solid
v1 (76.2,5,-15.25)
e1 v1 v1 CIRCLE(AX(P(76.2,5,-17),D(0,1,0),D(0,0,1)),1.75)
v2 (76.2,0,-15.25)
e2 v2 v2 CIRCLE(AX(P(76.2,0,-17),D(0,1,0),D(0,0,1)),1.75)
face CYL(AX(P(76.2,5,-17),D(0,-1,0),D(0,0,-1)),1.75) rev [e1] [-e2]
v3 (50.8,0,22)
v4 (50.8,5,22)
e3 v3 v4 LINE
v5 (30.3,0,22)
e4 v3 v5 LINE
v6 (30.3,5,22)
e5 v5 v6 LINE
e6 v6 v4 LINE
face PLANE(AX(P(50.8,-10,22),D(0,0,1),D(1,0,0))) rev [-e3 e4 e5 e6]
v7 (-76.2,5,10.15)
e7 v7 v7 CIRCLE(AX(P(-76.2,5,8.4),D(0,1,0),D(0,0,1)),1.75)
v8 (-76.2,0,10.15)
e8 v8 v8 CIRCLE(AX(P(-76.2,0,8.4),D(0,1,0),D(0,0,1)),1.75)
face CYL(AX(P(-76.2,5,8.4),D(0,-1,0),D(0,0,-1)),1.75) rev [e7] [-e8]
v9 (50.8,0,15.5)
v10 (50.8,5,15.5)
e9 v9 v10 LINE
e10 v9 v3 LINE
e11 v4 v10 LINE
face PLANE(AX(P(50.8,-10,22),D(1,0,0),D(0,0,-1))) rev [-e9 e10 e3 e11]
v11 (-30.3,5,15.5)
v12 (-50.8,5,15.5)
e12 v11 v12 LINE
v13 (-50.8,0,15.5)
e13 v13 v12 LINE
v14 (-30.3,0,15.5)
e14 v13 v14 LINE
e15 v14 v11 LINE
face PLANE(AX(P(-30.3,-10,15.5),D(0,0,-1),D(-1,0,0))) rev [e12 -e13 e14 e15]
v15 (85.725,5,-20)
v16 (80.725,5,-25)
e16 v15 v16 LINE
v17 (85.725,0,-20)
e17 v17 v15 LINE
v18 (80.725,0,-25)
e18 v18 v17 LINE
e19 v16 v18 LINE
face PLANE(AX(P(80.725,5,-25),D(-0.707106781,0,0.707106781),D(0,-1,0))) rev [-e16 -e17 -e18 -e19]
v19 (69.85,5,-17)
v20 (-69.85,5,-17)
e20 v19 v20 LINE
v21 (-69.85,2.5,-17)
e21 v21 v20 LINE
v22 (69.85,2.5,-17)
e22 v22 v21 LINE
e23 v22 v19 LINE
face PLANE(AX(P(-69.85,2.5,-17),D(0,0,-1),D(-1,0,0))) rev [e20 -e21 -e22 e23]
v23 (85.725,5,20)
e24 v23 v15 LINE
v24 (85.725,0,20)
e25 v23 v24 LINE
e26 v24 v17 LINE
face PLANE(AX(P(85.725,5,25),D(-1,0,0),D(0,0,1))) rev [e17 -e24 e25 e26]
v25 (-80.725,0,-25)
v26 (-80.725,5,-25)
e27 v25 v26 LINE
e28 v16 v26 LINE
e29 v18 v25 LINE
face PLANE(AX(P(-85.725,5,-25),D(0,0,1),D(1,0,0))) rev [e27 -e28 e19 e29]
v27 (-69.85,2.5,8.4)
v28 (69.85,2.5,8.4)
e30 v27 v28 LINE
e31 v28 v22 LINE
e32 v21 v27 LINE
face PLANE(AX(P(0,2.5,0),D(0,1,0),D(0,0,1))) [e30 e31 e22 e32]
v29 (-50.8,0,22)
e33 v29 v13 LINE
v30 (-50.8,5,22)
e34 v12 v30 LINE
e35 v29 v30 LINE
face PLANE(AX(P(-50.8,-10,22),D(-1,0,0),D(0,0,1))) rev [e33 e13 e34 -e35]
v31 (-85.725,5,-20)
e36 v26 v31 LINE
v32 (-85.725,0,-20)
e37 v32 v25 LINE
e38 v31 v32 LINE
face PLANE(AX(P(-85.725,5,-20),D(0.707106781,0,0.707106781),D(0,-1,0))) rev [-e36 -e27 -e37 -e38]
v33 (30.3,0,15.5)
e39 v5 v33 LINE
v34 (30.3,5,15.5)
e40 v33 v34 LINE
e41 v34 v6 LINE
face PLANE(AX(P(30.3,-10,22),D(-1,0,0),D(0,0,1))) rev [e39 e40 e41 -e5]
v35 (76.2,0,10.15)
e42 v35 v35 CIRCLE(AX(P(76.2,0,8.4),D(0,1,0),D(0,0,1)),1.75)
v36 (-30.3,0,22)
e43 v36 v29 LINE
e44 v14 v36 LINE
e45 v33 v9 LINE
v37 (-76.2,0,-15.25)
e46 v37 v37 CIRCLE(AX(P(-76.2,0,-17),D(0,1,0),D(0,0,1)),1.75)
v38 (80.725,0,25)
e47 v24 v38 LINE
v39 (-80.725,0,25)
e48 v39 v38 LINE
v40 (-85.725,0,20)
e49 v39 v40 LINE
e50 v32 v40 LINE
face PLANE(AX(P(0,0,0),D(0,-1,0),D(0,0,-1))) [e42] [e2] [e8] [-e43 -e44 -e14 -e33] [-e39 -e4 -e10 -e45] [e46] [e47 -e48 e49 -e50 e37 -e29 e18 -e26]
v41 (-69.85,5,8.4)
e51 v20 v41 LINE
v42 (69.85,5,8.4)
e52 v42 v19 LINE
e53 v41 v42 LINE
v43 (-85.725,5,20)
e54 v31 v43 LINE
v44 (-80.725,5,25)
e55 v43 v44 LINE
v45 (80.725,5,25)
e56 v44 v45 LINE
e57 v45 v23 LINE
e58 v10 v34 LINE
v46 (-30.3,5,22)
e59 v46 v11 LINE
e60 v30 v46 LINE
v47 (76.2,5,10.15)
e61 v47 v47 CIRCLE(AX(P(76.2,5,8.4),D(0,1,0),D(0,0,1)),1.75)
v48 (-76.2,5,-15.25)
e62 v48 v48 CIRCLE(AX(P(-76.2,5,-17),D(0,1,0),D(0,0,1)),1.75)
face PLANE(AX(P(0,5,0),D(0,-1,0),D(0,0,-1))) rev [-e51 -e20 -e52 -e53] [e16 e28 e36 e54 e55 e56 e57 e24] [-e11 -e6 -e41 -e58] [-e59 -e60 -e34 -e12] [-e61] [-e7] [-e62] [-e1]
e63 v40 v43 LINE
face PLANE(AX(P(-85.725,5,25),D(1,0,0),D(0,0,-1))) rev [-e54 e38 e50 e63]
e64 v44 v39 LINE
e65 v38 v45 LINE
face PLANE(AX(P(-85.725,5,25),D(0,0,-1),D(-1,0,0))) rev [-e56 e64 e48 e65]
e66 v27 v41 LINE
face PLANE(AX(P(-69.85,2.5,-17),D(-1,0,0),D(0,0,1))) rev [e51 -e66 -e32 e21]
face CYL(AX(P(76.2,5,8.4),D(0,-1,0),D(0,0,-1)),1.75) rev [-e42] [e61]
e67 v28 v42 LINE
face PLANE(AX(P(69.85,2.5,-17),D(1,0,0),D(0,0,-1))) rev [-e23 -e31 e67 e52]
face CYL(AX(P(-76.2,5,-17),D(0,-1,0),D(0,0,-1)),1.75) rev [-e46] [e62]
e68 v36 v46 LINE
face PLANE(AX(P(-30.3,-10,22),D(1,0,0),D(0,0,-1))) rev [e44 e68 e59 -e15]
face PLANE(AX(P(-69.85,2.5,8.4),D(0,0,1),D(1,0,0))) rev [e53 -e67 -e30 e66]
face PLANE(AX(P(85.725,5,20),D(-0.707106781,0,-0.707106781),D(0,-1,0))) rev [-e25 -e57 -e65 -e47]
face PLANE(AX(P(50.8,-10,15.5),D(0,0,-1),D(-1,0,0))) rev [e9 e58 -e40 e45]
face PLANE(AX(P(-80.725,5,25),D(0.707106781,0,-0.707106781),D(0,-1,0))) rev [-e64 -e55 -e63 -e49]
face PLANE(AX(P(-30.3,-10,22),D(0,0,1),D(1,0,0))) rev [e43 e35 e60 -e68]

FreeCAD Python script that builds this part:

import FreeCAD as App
import Part
import Sketcher
from FreeCAD import Vector


def edges_at(feature, points):
    """Names of the edges that pass closest to the given points."""
    edges = feature.Shape.Edges
    near = lambda p: min(range(len(edges)), key=lambda i: edges[i].distToShape(Part.Vertex(*p))[0])
    return sorted({f"Edge{near(p) + 1}" for p in points})

doc = App.newDocument("Part")
body = doc.addObject("PartDesign::Body", "Body")

sketch1 = body.newObject("Sketcher::SketchObject", "Sketch")
sketch1.AttachmentSupport = (doc.getObject("XZ_Plane"), [""])
sketch1.MapMode = "FlatFace"
sketch1.addGeometry(Part.LineSegment(Vector(-85.7, -25, 0), Vector(-85.7, 25, 0)), False)
sketch1.addGeometry(Part.LineSegment(Vector(-85.7, 25, 0), Vector(85.7, 25, 0)), False)
sketch1.addGeometry(Part.LineSegment(Vector(85.7, 25, 0), Vector(85.7, -25, 0)), False)
sketch1.addGeometry(Part.LineSegment(Vector(85.7, -25, 0), Vector(-85.7, -25, 0)), False)
sketch1.addGeometry(Part.Circle(Vector(-76.2, 8.4, 0), Vector(0, 0, 1), 1.8), False)
sketch1.addGeometry(Part.Circle(Vector(76.2, 8.4, 0), Vector(0, 0, 1), 1.8), False)
sketch1.addGeometry(Part.Circle(Vector(-76.2, -17, 0), Vector(0, 0, 1), 1.8), False)
sketch1.addGeometry(Part.Circle(Vector(76.2, -17, 0), Vector(0, 0, 1), 1.8), False)
sketch1.addConstraint(Sketcher.Constraint("Coincident", 0, 2, 1, 1))
sketch1.addConstraint(Sketcher.Constraint("Coincident", 1, 2, 2, 1))
sketch1.addConstraint(Sketcher.Constraint("Coincident", 2, 2, 3, 1))
sketch1.addConstraint(Sketcher.Constraint("Coincident", 3, 2, 0, 1))
sketch1.addConstraint(Sketcher.Constraint("Vertical", 0))
sketch1.addConstraint(Sketcher.Constraint("Horizontal", 1))
sketch1.addConstraint(Sketcher.Constraint("Vertical", 2))
sketch1.addConstraint(Sketcher.Constraint("Horizontal", 3))
sketch1.addConstraint(Sketcher.Constraint("Equal", 4, 5))
sketch1.addConstraint(Sketcher.Constraint("Equal", 5, 6))
sketch1.addConstraint(Sketcher.Constraint("Equal", 6, 7))
sketch1.addConstraint(Sketcher.Constraint("Symmetric", 0, 2, 2, 2, -1, 1))
sketch1.addConstraint(Sketcher.Constraint("Symmetric", 4, 3, 5, 3, -2))
sketch1.addConstraint(Sketcher.Constraint("Symmetric", 6, 3, 7, 3, -2))
sketch1.addConstraint(Sketcher.Constraint("Vertical", 4, 3, 6, 3))
sketch1.addConstraint(Sketcher.Constraint("Diameter", 4, 3.5))
sketch1.addConstraint(Sketcher.Constraint("DistanceY", 0, 1, 0, 2, 50.0))
sketch1.addConstraint(Sketcher.Constraint("DistanceY", 6, 3, -1, 1, 17.0))
sketch1.addConstraint(Sketcher.Constraint("DistanceX", 1, 1, 1, 2, 171.45))
sketch1.addConstraint(Sketcher.Constraint("DistanceX", 4, 3, -1, 1, 76.2))
sketch1.addConstraint(Sketcher.Constraint("DistanceY", -1, 1, 4, 3, 8.4))
pad1 = body.newObject("PartDesign::Pad", "Pad")
pad1.Profile = sketch1
pad1.Length = 5
pad1.Reversed = True
doc.recompute()

chamfer = body.newObject("PartDesign::Chamfer", "Chamfer")
chamfer.Base = (pad1, edges_at(pad1, [
    (85.725, 2.5, 25),
    (-85.725, 2.5, 25),
    (-85.725, 2.5, -25),
    (85.725, 2.5, -25),
]))
chamfer.Size = 5

sketch2 = body.newObject("Sketcher::SketchObject", "Sketch001")
sketch2.AttachmentSupport = (doc.getObject("XZ_Plane"), [""])
sketch2.MapMode = "FlatFace"
sketch2.AttachmentOffset = App.Placement(Vector(0, 0, -5), App.Rotation())
sketch2.addGeometry(Part.LineSegment(Vector(-70, -17, 0), Vector(-70, 8, 0)), False)
sketch2.addGeometry(Part.LineSegment(Vector(-70, 8, 0), Vector(70, 8, 0)), False)
sketch2.addGeometry(Part.LineSegment(Vector(70, 8, 0), Vector(70, -17, 0)), False)
sketch2.addGeometry(Part.LineSegment(Vector(70, -17, 0), Vector(-70, -17, 0)), False)
sketch2.addConstraint(Sketcher.Constraint("Coincident", 0, 2, 1, 1))
sketch2.addConstraint(Sketcher.Constraint("Coincident", 1, 2, 2, 1))
sketch2.addConstraint(Sketcher.Constraint("Coincident", 2, 2, 3, 1))
sketch2.addConstraint(Sketcher.Constraint("Coincident", 3, 2, 0, 1))
sketch2.addConstraint(Sketcher.Constraint("Vertical", 0))
sketch2.addConstraint(Sketcher.Constraint("Horizontal", 1))
sketch2.addConstraint(Sketcher.Constraint("Vertical", 2))
sketch2.addConstraint(Sketcher.Constraint("Horizontal", 3))
sketch2.addConstraint(Sketcher.Constraint("DistanceX", 1, 1, 1, 2, 139.7))
sketch2.addConstraint(Sketcher.Constraint("DistanceY", 0, 1, 0, 2, 25.4))
sketch2.addConstraint(Sketcher.Constraint("DistanceY", 2, 2, -1, 1, 17.0))
sketch2.addConstraint(Sketcher.Constraint("DistanceX", 0, 2, -1, 1, 69.85))
pocket1 = body.newObject("PartDesign::Pocket", "Pocket")
pocket1.Profile = sketch2
pocket1.Length = 2.5
pocket1.Reversed = True

sketch3 = body.newObject("Sketcher::SketchObject", "Sketch002")
sketch3.AttachmentSupport = (doc.getObject("XZ_Plane"), [""])
sketch3.MapMode = "FlatFace"
sketch3.AttachmentOffset = App.Placement(Vector(0, 0, -5), App.Rotation())
sketch3.addGeometry(Part.LineSegment(Vector(30, 16, 0), Vector(30, 22, 0)), False)
sketch3.addGeometry(Part.LineSegment(Vector(30, 22, 0), Vector(51, 22, 0)), False)
sketch3.addGeometry(Part.LineSegment(Vector(51, 22, 0), Vector(51, 16, 0)), False)
sketch3.addGeometry(Part.LineSegment(Vector(51, 16, 0), Vector(30, 16, 0)), False)
sketch3.addGeometry(Part.LineSegment(Vector(-51, 16, 0), Vector(-51, 22, 0)), False)
sketch3.addGeometry(Part.LineSegment(Vector(-51, 22, 0), Vector(-30, 22, 0)), False)
sketch3.addGeometry(Part.LineSegment(Vector(-30, 22, 0), Vector(-30, 16, 0)), False)
sketch3.addGeometry(Part.LineSegment(Vector(-30, 16, 0), Vector(-51, 16, 0)), False)
sketch3.addConstraint(Sketcher.Constraint("Coincident", 0, 2, 1, 1))
sketch3.addConstraint(Sketcher.Constraint("Coincident", 1, 2, 2, 1))
sketch3.addConstraint(Sketcher.Constraint("Coincident", 2, 2, 3, 1))
sketch3.addConstraint(Sketcher.Constraint("Coincident", 3, 2, 0, 1))
sketch3.addConstraint(Sketcher.Constraint("Coincident", 4, 2, 5, 1))
sketch3.addConstraint(Sketcher.Constraint("Coincident", 5, 2, 6, 1))
sketch3.addConstraint(Sketcher.Constraint("Coincident", 6, 2, 7, 1))
sketch3.addConstraint(Sketcher.Constraint("Coincident", 7, 2, 4, 1))
sketch3.addConstraint(Sketcher.Constraint("Vertical", 0))
sketch3.addConstraint(Sketcher.Constraint("Horizontal", 1))
sketch3.addConstraint(Sketcher.Constraint("Vertical", 2))
sketch3.addConstraint(Sketcher.Constraint("Horizontal", 3))
sketch3.addConstraint(Sketcher.Constraint("Vertical", 4))
sketch3.addConstraint(Sketcher.Constraint("Horizontal", 5))
sketch3.addConstraint(Sketcher.Constraint("Vertical", 6))
sketch3.addConstraint(Sketcher.Constraint("Horizontal", 7))
sketch3.addConstraint(Sketcher.Constraint("Symmetric", 1, 2, 4, 2, -2))
sketch3.addConstraint(Sketcher.Constraint("Symmetric", 3, 2, 6, 2, -2))
sketch3.addConstraint(Sketcher.Constraint("DistanceX", 1, 1, 1, 2, 20.5))
sketch3.addConstraint(Sketcher.Constraint("DistanceY", 0, 1, 0, 2, 6.5))
sketch3.addConstraint(Sketcher.Constraint("DistanceY", -1, 1, 0, 2, 22.0))
sketch3.addConstraint(Sketcher.Constraint("DistanceX", -1, 1, 0, 2, 30.3))
pocket2 = body.newObject("PartDesign::Pocket", "Pocket001")
pocket2.Profile = sketch3
pocket2.Length = 15
pocket2.Reversed = True

doc.recompute()
